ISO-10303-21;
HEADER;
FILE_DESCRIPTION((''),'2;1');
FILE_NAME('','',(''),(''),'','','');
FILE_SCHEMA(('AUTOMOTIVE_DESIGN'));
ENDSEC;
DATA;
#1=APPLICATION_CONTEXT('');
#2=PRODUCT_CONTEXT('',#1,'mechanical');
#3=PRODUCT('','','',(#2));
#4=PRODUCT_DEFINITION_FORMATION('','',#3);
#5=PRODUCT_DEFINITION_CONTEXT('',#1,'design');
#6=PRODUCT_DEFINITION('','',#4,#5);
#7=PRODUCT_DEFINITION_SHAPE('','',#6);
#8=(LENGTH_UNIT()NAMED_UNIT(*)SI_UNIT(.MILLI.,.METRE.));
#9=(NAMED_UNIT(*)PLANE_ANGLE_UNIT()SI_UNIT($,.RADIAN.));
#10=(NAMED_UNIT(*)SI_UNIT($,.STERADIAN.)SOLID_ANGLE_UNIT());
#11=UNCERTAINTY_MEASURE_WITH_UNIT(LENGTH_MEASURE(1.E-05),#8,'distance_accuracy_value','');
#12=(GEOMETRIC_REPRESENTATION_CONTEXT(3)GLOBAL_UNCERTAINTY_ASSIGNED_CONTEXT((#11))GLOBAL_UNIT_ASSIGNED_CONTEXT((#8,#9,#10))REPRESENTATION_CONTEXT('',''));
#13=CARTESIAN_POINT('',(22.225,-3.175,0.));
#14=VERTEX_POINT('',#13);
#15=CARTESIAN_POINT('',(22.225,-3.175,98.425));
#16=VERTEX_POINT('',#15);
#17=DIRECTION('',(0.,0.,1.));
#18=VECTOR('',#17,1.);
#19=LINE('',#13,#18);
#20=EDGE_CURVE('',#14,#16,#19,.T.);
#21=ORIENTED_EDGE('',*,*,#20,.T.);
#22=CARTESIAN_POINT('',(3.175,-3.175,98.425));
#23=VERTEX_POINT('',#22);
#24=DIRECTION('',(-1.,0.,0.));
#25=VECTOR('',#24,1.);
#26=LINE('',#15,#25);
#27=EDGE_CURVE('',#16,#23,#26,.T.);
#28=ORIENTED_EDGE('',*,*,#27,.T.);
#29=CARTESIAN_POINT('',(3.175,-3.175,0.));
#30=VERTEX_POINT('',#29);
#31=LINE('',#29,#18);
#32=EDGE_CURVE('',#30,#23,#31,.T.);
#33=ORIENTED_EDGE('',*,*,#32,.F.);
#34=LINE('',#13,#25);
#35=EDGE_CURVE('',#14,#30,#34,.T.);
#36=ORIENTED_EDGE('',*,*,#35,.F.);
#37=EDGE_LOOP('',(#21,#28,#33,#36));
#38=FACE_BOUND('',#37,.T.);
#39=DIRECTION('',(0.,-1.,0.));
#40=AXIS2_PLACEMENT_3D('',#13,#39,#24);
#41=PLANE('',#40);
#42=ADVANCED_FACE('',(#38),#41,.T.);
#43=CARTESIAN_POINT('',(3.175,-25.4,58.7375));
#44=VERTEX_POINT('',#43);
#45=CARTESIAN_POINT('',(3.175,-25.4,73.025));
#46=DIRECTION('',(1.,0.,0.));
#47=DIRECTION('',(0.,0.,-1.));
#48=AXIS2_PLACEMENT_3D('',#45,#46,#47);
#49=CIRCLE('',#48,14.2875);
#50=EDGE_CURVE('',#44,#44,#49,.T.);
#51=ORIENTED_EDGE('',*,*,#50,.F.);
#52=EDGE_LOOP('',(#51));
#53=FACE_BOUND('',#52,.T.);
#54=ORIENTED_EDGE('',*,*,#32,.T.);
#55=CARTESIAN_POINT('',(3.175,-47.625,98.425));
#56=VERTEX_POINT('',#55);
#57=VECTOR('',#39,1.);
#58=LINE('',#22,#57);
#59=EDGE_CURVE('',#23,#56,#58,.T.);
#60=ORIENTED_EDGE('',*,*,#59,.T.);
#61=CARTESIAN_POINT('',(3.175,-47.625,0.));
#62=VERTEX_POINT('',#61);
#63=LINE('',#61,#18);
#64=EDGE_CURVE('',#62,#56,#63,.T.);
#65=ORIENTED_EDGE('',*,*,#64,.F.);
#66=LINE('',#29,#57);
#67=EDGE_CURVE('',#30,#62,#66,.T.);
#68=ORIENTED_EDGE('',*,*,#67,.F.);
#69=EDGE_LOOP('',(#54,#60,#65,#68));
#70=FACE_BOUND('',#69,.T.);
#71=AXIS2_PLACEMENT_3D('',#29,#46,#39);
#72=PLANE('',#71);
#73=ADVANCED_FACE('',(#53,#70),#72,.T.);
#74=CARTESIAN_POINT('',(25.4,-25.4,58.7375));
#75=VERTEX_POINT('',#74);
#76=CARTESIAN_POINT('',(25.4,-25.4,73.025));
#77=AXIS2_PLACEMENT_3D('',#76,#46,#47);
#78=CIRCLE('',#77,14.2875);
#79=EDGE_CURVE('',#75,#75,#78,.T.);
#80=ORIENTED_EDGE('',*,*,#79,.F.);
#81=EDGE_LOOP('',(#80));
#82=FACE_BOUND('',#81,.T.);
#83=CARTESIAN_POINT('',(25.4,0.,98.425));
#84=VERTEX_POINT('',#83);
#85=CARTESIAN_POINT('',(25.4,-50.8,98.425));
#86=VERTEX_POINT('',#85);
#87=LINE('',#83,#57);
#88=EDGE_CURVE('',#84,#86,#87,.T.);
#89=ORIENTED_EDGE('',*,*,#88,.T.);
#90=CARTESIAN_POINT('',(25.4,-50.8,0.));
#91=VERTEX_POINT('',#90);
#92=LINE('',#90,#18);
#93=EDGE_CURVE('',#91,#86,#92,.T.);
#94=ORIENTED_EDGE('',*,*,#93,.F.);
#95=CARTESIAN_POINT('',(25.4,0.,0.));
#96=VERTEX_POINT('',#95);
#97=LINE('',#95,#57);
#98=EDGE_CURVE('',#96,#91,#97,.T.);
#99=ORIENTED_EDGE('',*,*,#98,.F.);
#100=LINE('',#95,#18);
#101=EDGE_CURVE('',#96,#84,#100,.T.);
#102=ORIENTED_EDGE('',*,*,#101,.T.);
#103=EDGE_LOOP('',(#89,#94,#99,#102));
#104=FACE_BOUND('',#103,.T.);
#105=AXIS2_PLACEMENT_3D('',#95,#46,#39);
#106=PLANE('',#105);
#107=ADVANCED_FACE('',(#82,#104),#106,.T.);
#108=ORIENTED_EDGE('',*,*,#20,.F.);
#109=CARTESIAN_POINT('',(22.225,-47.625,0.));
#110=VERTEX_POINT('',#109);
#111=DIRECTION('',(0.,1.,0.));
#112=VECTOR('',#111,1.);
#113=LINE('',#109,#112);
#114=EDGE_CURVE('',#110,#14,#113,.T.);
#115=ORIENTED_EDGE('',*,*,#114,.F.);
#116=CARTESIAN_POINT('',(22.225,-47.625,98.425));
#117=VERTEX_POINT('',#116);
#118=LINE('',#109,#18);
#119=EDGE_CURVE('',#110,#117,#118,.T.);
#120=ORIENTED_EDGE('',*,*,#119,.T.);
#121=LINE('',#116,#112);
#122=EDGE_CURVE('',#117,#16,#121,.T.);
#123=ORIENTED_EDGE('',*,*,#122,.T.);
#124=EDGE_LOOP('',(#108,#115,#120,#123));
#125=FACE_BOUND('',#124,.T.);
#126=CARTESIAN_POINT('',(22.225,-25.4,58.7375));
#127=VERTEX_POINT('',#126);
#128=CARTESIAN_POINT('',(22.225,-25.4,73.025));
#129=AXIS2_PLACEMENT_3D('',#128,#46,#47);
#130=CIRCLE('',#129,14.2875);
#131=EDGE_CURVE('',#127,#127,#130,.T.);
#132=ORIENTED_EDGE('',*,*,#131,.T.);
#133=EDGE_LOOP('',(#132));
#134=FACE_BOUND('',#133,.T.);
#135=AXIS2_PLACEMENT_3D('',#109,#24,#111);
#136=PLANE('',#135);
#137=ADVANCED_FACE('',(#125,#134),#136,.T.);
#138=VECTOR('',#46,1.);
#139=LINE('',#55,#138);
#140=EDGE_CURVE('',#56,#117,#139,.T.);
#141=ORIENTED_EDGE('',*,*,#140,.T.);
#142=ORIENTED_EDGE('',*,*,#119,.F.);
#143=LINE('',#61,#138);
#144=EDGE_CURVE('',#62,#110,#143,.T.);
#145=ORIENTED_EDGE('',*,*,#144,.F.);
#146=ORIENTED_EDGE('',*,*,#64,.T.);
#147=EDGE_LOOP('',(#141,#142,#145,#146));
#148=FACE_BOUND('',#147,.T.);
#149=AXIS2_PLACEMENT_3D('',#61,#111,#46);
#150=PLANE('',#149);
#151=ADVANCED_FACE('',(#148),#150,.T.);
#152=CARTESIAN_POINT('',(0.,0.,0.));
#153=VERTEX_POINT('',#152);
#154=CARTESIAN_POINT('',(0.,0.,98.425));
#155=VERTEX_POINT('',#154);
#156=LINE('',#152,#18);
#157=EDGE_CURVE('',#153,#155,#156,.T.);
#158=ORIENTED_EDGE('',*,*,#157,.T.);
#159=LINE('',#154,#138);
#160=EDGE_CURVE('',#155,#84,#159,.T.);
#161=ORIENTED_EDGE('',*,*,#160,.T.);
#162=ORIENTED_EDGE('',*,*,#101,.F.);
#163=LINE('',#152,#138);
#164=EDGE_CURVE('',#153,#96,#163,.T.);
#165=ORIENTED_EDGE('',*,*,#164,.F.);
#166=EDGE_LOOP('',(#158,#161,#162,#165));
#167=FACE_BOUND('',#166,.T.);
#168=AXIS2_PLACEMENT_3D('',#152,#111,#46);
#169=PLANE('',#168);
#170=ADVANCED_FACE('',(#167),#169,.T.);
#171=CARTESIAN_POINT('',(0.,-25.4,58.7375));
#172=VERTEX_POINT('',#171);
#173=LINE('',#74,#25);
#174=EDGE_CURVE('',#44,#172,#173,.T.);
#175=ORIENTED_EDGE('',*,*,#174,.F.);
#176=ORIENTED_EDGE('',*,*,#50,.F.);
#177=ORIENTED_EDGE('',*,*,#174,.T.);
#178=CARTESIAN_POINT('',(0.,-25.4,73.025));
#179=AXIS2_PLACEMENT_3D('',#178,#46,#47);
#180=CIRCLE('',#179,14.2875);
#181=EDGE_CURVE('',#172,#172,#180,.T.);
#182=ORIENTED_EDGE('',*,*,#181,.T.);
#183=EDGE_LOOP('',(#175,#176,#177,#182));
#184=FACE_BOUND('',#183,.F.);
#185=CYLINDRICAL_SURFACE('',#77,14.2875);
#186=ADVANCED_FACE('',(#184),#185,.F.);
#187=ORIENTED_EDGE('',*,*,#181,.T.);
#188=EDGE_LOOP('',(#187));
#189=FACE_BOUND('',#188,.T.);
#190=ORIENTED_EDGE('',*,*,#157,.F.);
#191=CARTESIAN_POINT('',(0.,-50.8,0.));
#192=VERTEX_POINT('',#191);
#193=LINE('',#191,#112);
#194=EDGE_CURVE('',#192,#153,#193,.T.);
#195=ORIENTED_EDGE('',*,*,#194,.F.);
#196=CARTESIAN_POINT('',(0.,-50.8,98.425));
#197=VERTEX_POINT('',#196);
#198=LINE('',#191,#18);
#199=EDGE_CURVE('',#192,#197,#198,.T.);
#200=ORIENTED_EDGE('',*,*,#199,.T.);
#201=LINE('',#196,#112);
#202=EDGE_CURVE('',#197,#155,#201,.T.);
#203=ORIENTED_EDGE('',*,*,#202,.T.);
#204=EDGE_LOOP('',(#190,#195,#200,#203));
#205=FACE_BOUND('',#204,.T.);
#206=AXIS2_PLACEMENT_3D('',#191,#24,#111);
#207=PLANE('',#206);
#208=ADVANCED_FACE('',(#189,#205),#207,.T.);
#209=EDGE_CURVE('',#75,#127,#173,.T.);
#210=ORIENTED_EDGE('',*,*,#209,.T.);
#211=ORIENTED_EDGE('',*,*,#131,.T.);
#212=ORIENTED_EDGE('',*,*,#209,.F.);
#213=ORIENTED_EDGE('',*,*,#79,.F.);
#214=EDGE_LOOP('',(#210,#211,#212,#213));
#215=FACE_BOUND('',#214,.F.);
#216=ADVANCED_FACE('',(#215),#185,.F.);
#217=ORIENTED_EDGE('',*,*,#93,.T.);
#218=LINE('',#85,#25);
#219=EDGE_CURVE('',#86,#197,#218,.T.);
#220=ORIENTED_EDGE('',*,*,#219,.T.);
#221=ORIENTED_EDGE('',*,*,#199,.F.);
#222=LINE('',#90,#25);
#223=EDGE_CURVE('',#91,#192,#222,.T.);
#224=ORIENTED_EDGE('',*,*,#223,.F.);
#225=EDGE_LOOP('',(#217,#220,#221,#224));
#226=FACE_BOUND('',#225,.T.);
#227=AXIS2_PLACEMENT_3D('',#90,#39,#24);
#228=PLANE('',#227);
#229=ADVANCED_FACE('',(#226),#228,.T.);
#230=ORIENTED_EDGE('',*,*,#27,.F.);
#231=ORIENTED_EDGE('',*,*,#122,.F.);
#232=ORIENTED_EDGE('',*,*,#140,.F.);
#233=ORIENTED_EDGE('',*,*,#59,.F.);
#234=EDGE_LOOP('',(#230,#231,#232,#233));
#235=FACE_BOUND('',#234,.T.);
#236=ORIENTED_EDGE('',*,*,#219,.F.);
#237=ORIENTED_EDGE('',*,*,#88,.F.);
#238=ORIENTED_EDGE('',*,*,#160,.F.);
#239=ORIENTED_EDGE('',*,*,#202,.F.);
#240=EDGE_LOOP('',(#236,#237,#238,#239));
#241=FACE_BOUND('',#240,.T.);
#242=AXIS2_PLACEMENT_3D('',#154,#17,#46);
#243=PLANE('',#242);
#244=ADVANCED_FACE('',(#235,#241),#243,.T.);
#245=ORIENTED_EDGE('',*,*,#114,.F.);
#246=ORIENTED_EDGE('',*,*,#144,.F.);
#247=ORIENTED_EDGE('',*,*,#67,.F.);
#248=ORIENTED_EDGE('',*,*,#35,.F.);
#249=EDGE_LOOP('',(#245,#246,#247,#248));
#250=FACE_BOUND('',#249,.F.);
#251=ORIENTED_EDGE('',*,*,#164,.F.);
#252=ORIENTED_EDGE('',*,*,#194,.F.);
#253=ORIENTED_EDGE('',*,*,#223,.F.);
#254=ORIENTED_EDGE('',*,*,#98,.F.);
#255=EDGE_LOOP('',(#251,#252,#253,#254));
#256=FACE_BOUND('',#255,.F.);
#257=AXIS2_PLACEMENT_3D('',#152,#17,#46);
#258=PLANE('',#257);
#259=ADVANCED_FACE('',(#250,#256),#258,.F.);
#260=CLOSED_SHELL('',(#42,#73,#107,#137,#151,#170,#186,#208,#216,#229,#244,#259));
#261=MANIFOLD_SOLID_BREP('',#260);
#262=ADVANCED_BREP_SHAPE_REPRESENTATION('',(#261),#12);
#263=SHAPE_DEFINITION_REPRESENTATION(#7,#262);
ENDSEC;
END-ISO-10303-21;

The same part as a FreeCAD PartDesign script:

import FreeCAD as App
import Part
import Sketcher

V = App.Vector
Q = App.Units.Quantity

doc = App.newDocument("Part")
body = doc.addObject("PartDesign::Body", "Body")

sketch1 = doc.addObject("Sketcher::SketchObject", "Sketch")
body.addObject(sketch1)
sketch1.AttachmentSupport = (doc.XY_Plane, [""])
sketch1.MapMode = "FlatFace"
sketch1.addGeometry([
    Part.LineSegment(V(25.4, 0, 0), V(0, 0, 0)),
    Part.LineSegment(V(0, 0, 0), V(0, -50.8, 0)),
    Part.LineSegment(V(0, -50.8, 0), V(25.4, -50.8, 0)),
    Part.LineSegment(V(25.4, -50.8, 0), V(25.4, 0, 0)),
    Part.LineSegment(V(3.175, -3.175, 0), V(22.225, -3.175, 0)),
    Part.LineSegment(V(22.225, -3.175, 0), V(22.225, -47.625, 0)),
    Part.LineSegment(V(22.225, -47.625, 0), V(3.175, -47.625, 0)),
    Part.LineSegment(V(3.175, -47.625, 0), V(3.175, -3.175, 0)),
], False)
sketch1.addConstraint([
    Sketcher.Constraint("Coincident", 0, 2, 1, 1),
    Sketcher.Constraint("Coincident", 1, 2, 2, 1),
    Sketcher.Constraint("Coincident", 2, 2, 3, 1),
    Sketcher.Constraint("Coincident", 3, 2, 0, 1),
    Sketcher.Constraint("Coincident", 4, 2, 5, 1),
    Sketcher.Constraint("Coincident", 5, 2, 6, 1),
    Sketcher.Constraint("Coincident", 6, 2, 7, 1),
    Sketcher.Constraint("Coincident", 7, 2, 4, 1),
    Sketcher.Constraint("Horizontal", 0),
    Sketcher.Constraint("Vertical", 1),
    Sketcher.Constraint("Horizontal", 2),
    Sketcher.Constraint("Vertical", 3),
    Sketcher.Constraint("Horizontal", 4),
    Sketcher.Constraint("Vertical", 5),
    Sketcher.Constraint("Horizontal", 6),
    Sketcher.Constraint("Vertical", 7),
    Sketcher.Constraint("Coincident", 0, 2, -1, 1),
    Sketcher.Constraint("DistanceX", 0, 2, 0, 1, Q("1 in")),
    Sketcher.Constraint("DistanceY", 1, 2, 1, 1, Q("2 in")),
    Sketcher.Constraint("DistanceY", 4, 2, -1, 1, Q("0.125 in")),
    Sketcher.Constraint("DistanceX", -1, 1, 6, 2, Q("0.125 in")),
    Sketcher.Constraint("DistanceX", 4, 2, 3, 2, Q("0.125 in")),
    Sketcher.Constraint("DistanceY", 2, 2, 5, 2, Q("0.125 in")),
])
pad1 = doc.addObject("PartDesign::Pad", "Pad")
body.addObject(pad1)
pad1.Profile = sketch1
pad1.Length = Q("3.875 in")

sketch2 = doc.addObject("Sketcher::SketchObject", "Sketch001")
body.addObject(sketch2)
sketch2.AttachmentSupport = (doc.YZ_Plane, [""])
sketch2.MapMode = "FlatFace"
sketch2.AttachmentOffset = App.Placement(V(0, 0, 1 * 25.4), App.Rotation())
sketch2.addGeometry(Part.Circle(V(-25.4, 73.025, 0), V(0, 0, 1), 14.2875), False)
sketch2.addConstraint([
    Sketcher.Constraint("Diameter", 0, Q("1.125 in")),
    Sketcher.Constraint("DistanceX", 0, 3, -1, 1, Q("1 in")),
    Sketcher.Constraint("DistanceY", -1, 1, 0, 3, Q("2.875 in")),
])
pocket1 = doc.addObject("PartDesign::Pocket", "Pocket")
body.addObject(pocket1)
pocket1.Profile = sketch2
pocket1.Length = Q("1.5 in")

doc.recompute()
